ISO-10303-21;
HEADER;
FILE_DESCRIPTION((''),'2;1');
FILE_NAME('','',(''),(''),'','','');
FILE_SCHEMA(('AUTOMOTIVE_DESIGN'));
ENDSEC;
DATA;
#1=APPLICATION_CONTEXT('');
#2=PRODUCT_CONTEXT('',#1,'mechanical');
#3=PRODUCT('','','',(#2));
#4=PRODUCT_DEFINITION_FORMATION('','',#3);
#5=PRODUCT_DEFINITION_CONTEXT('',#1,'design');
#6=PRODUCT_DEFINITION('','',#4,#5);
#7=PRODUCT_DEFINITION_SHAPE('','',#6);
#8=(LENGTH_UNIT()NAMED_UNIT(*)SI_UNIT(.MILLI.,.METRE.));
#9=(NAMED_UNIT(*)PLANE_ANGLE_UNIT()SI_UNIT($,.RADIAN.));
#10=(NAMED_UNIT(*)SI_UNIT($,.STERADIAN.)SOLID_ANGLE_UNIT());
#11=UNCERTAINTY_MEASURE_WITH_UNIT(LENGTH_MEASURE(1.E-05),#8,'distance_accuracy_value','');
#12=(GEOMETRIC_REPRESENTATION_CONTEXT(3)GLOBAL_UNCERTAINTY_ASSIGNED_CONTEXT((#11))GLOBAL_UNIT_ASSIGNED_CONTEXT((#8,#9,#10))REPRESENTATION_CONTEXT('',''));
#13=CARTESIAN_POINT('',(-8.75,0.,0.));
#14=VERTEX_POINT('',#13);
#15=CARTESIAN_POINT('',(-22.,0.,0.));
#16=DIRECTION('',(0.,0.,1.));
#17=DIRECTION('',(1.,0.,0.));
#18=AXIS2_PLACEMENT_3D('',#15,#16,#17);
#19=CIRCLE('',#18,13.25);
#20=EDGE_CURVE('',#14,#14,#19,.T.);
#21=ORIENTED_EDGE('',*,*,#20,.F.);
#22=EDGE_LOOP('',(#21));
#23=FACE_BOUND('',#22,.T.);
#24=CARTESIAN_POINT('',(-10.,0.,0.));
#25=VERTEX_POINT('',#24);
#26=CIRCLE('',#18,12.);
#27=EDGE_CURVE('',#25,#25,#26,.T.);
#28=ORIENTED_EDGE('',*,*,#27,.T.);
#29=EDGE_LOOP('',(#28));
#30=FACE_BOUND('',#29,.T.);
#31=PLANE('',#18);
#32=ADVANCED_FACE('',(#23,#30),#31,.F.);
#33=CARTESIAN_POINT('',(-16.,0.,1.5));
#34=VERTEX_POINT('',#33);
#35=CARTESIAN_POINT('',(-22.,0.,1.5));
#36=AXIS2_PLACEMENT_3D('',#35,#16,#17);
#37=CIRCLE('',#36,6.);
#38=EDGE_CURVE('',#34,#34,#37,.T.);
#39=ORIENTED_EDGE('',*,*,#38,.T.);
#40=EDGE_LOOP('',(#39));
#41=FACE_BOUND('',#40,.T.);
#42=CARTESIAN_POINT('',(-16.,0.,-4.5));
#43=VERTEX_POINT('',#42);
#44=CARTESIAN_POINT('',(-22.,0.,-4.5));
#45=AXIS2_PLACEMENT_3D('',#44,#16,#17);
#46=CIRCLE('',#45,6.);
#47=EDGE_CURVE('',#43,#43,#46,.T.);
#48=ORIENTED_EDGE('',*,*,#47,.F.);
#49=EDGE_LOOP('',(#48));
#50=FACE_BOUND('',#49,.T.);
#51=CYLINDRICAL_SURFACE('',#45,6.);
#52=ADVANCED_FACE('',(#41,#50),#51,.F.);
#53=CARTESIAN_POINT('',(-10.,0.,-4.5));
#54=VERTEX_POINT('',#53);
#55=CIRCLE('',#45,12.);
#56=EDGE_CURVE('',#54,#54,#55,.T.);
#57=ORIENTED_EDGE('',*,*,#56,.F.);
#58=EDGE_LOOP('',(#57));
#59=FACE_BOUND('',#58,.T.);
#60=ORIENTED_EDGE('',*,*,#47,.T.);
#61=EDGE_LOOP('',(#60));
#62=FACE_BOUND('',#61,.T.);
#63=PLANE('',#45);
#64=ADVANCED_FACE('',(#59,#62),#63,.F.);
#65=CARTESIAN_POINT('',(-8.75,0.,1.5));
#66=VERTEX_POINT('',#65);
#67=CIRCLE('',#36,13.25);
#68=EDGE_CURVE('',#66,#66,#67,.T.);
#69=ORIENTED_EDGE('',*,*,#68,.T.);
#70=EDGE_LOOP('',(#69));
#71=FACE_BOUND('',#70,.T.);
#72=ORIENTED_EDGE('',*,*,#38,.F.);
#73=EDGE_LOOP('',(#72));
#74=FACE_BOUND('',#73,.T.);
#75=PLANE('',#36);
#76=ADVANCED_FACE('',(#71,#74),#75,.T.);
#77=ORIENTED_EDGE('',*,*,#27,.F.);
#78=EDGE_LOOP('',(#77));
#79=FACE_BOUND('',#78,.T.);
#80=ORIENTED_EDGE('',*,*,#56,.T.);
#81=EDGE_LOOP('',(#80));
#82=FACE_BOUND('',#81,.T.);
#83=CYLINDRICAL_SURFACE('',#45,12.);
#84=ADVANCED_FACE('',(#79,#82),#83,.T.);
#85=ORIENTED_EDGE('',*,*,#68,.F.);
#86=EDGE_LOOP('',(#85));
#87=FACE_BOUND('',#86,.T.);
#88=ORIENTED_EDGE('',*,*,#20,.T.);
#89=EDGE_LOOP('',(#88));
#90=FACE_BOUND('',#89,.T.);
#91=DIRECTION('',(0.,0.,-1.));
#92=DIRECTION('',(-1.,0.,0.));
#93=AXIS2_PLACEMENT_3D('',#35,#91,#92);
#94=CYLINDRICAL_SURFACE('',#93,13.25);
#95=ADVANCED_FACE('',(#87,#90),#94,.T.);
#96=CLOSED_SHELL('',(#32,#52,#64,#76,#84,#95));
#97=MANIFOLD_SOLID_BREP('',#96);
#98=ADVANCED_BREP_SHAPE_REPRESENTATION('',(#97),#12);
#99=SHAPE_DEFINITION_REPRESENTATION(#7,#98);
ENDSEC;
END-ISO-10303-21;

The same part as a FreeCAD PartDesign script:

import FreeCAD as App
import Part
import Sketcher
from FreeCAD import Vector

doc = App.newDocument("Part")
body = doc.addObject("PartDesign::Body", "Body")

sketch1 = body.newObject("Sketcher::SketchObject", "Sketch")
sketch1.AttachmentSupport = (doc.getObject("XY_Plane"), [""])
sketch1.MapMode = "FlatFace"
sketch1.addGeometry(Part.Circle(Vector(-22, 0, 0), Vector(0, 0, 1), 12), False)
sketch1.addConstraint([
    Sketcher.Constraint("PointOnObject", 0, 3, -1),
    Sketcher.Constraint("Diameter", 0, 24.0),
    Sketcher.Constraint("DistanceX", 0, 3, -1, 1, 22.0),
])
pad1 = body.newObject("PartDesign::Pad", "Pad")
pad1.Profile = sketch1
pad1.Length = 4.5
pad1.Reversed = True

sketch2 = body.newObject("Sketcher::SketchObject", "Sketch001")
sketch2.AttachmentSupport = (doc.getObject("XY_Plane"), [""])
sketch2.MapMode = "FlatFace"
sketch2.addGeometry(Part.Circle(Vector(-22, 0, 0), Vector(0, 0, 1), 13), False)
sketch2.addConstraint([
    Sketcher.Constraint("PointOnObject", 0, 3, -1),
    Sketcher.Constraint("Diameter", 0, 26.5),
    Sketcher.Constraint("DistanceX", 0, 3, -1, 1, 22.0),
])
pad2 = body.newObject("PartDesign::Pad", "Pad001")
pad2.Profile = sketch2
pad2.Length = 1.5

sketch3 = body.newObject("Sketcher::SketchObject", "Sketch002")
sketch3.AttachmentSupport = (doc.getObject("XY_Plane"), [""])
sketch3.MapMode = "FlatFace"
sketch3.AttachmentOffset = App.Placement(Vector(0, 0, 1.5), App.Rotation())
sketch3.addGeometry(Part.Circle(Vector(-22, 0, 0), Vector(0, 0, 1), 6), False)
sketch3.addConstraint([
    Sketcher.Constraint("PointOnObject", 0, 3, -1),
    Sketcher.Constraint("Diameter", 0, 12.0),
    Sketcher.Constraint("DistanceX", 0, 3, -1, 1, 22.0),
])
pocket1 = body.newObject("PartDesign::Pocket", "Pocket")
pocket1.Profile = sketch3
pocket1.Type = "ThroughAll"

doc.recompute()
